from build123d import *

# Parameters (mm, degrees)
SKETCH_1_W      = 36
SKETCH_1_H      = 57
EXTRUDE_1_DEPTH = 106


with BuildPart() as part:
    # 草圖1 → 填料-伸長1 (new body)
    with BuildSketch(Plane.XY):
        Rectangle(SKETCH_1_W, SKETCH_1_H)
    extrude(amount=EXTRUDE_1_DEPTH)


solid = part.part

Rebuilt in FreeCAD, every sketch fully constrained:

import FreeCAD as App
import Part
import Sketcher
Q = App.Units.Quantity


def add_polygon(sketch, points):
    """Adds a closed chain of lines whose ends are joined by coincident constraints."""
    first, n = sketch.GeometryCount, len(points)
    for a, b in zip(points, points[1:] + points[:1]):
        sketch.addGeometry(Part.LineSegment(App.Vector(*a, 0), App.Vector(*b, 0)), False)
    for i in range(n):
        sketch.addConstraint(Sketcher.Constraint("Coincident", first + i, 2, first + (i + 1) % n, 1))

doc = App.newDocument("Part")
body = doc.addObject("PartDesign::Body", "Body")

# Sketch on XY plane
sketch1 = body.newObject("Sketcher::SketchObject", "Sketch")
sketch1.AttachmentSupport = (doc.getObject("XY_Plane"), [""])
sketch1.MapMode = "FlatFace"
add_polygon(sketch1, [(-18, 28), (-18, -28), (18, -28), (18, 28)])  # lines 0-3
sketch1.addConstraint(Sketcher.Constraint("Vertical", 0))
sketch1.addConstraint(Sketcher.Constraint("Horizontal", 1))
sketch1.addConstraint(Sketcher.Constraint("Vertical", 2))
sketch1.addConstraint(Sketcher.Constraint("Horizontal", 3))
sketch1.addConstraint(Sketcher.Constraint("Symmetric", 0, 2, 2, 2, -1, 1))
sketch1.addConstraint(Sketcher.Constraint("DistanceX", 1, 1, 1, 2, Q("36 mm")))
sketch1.addConstraint(Sketcher.Constraint("DistanceY", 0, 2, 0, 1, Q("57 mm")))
pad1 = body.newObject("PartDesign::Pad", "Pad")
pad1.Profile = sketch1
pad1.Length = 106

doc.recompute()
